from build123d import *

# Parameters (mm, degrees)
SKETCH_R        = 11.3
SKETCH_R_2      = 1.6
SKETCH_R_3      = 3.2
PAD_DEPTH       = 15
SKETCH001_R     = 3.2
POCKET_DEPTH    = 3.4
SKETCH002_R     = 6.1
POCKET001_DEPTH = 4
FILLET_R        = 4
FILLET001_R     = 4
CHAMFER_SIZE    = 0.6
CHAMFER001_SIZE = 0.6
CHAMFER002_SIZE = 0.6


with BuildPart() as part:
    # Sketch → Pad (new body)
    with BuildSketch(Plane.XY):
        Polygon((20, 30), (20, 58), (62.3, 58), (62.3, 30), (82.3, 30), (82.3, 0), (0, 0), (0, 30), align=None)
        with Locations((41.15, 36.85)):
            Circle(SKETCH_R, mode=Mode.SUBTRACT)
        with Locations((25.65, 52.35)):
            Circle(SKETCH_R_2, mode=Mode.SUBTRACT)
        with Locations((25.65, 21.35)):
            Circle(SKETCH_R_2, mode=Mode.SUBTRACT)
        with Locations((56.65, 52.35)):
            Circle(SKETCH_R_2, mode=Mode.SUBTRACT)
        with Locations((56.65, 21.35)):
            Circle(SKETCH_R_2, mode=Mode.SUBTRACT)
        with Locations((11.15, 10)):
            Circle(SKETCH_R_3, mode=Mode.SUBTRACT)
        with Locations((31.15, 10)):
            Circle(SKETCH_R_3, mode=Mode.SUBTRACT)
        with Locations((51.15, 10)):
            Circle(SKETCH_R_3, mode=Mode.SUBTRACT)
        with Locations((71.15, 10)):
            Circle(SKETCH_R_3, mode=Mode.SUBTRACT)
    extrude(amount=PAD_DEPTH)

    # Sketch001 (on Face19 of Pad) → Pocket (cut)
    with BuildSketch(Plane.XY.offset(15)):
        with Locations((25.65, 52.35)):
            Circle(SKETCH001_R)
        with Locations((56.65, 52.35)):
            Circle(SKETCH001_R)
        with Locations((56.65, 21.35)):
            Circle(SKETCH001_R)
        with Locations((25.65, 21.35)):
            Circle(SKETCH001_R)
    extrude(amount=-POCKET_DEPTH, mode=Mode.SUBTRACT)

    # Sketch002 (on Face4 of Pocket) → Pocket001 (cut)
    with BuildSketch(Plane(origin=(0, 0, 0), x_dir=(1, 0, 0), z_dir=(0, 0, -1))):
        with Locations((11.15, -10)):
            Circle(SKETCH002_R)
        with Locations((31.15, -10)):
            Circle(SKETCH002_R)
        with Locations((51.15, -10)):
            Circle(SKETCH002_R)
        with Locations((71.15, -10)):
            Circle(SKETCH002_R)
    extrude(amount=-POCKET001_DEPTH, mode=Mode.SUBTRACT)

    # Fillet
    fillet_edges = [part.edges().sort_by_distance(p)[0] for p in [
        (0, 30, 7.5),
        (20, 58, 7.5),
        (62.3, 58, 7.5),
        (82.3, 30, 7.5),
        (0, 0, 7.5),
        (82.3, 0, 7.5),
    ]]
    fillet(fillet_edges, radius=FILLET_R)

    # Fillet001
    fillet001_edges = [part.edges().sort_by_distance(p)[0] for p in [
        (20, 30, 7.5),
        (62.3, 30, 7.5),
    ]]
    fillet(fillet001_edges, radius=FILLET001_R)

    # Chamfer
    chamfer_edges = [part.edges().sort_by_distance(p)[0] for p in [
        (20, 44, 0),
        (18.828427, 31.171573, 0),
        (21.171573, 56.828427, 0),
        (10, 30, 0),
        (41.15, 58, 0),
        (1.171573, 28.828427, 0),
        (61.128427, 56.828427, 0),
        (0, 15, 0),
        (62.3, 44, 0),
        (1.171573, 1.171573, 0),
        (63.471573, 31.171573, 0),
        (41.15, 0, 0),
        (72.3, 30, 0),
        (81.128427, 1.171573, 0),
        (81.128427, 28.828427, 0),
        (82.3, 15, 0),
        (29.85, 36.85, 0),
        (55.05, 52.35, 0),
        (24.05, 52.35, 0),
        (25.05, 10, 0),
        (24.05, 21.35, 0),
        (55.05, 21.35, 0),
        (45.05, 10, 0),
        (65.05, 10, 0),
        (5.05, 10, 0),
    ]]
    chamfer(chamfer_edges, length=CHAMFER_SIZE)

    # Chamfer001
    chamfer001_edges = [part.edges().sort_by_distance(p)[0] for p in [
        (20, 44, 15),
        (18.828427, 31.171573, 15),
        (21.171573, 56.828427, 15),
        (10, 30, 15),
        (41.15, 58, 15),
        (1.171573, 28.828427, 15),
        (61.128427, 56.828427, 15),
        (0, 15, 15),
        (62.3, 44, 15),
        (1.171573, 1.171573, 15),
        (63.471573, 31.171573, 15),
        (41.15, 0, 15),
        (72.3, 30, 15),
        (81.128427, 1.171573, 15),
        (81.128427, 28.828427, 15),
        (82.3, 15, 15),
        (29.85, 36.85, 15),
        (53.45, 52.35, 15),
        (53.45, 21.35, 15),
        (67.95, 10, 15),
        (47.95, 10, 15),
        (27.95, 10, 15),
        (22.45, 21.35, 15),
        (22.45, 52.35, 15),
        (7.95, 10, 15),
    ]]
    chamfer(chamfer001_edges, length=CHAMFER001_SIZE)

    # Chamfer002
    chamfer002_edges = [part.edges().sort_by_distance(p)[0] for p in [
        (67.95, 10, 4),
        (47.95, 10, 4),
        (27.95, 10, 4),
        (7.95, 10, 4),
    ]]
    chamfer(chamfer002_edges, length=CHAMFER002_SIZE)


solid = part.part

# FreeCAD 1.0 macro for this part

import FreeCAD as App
import Part
import Sketcher
from FreeCAD import Vector
Q = App.Units.Quantity


def edges_at(feature, points):
    """Names of the edges that pass closest to the given points."""
    edges = feature.Shape.Edges
    near = lambda p: min(range(len(edges)), key=lambda i: edges[i].distToShape(Part.Vertex(*p))[0])
    return sorted({f"Edge{near(p) + 1}" for p in points})


def add_polygon(sketch, points):
    """Adds a closed chain of lines whose ends are joined by coincident constraints."""
    first, n = sketch.GeometryCount, len(points)
    for a, b in zip(points, points[1:] + points[:1]):
        sketch.addGeometry(Part.LineSegment(App.Vector(*a, 0), App.Vector(*b, 0)), False)
    for i in range(n):
        sketch.addConstraint(Sketcher.Constraint("Coincident", first + i, 2, first + (i + 1) % n, 1))

doc = App.newDocument("Part")
body = doc.addObject("PartDesign::Body", "Body")

# Sketch on XY plane
sketch1 = doc.addObject("Sketcher::SketchObject", "Sketch")
body.addObject(sketch1)
sketch1.AttachmentSupport = (doc.XY_Plane, [""])
sketch1.MapMode = "FlatFace"
add_polygon(sketch1, [(20, 58), (20, 30), (0, 30), (0, 0), (82.3, 0), (82.3, 30), (62.3, 30), (62.3, 58)])  # lines 0-7
sketch1.addGeometry(Part.Circle(Vector(71.2, 10, 0), Vector(0, 0, 1), 3.2), False)  # 8
sketch1.addGeometry(Part.Circle(Vector(51.1, 10, 0), Vector(0, 0, 1), 3.2), False)  # 9
sketch1.addGeometry(Part.Circle(Vector(56.6, 21.4, 0), Vector(0, 0, 1), 1.6), False)  # 10
sketch1.addGeometry(Part.Circle(Vector(31.1, 10, 0), Vector(0, 0, 1), 3.2), False)  # 11
sketch1.addGeometry(Part.Circle(Vector(11.2, 10, 0), Vector(0, 0, 1), 3.2), False)  # 12
sketch1.addGeometry(Part.Circle(Vector(25.6, 21.4, 0), Vector(0, 0, 1), 1.6), False)  # 13
sketch1.addGeometry(Part.Circle(Vector(56.6, 52.4, 0), Vector(0, 0, 1), 1.6), False)  # 14
sketch1.addGeometry(Part.Circle(Vector(41.1, 36.9, 0), Vector(0, 0, 1), 11.3), False)  # 15
sketch1.addGeometry(Part.Circle(Vector(25.6, 52.4, 0), Vector(0, 0, 1), 1.6), False)  # 16
sketch1.addConstraint([
    Sketcher.Constraint("Vertical", 0),
    Sketcher.Constraint("Horizontal", 1),
    Sketcher.Constraint("Vertical", 2),
    Sketcher.Constraint("Horizontal", 3),
    Sketcher.Constraint("Vertical", 4),
    Sketcher.Constraint("Horizontal", 5),
    Sketcher.Constraint("Vertical", 6),
    Sketcher.Constraint("Horizontal", 7),
    Sketcher.Constraint("Coincident", 2, 2, -1, 1),
    Sketcher.Constraint("Equal", 8, 9),
    Sketcher.Constraint("Equal", 9, 11),
    Sketcher.Constraint("Equal", 11, 12),
    Sketcher.Constraint("Equal", 10, 13),
    Sketcher.Constraint("Equal", 13, 14),
    Sketcher.Constraint("Equal", 14, 16),
    Sketcher.Constraint("Horizontal", 8, 3, 9, 3),
    Sketcher.Constraint("Horizontal", 9, 3, 11, 3),
    Sketcher.Constraint("Horizontal", 11, 3, 12, 3),
    Sketcher.Constraint("Horizontal", 10, 3, 13, 3),
    Sketcher.Constraint("Horizontal", 14, 3, 16, 3),
    Sketcher.Constraint("Horizontal", 1, 2, 4, 2),
    Sketcher.Constraint("Vertical", 10, 3, 14, 3),
    Sketcher.Constraint("Vertical", 13, 3, 16, 3),
    Sketcher.Constraint("Equal", 1, 5),
    Sketcher.Constraint("Diameter", 8, Q("6.4 mm")),
    Sketcher.Constraint("Diameter", 10, Q("3.2 mm")),
    Sketcher.Constraint("Diameter", 15, Q("22.6 mm")),
    Sketcher.Constraint("DistanceX", 1, 2, 1, 1, Q("20 mm")),
    Sketcher.Constraint("DistanceY", 0, 2, 0, 1, Q("28 mm")),
    Sketcher.Constraint("DistanceY", 2, 2, 2, 1, Q("30 mm")),
    Sketcher.Constraint("DistanceX", 3, 1, 3, 2, Q("82.3 mm")),
    Sketcher.Constraint("DistanceY", -1, 1, 8, 3, Q("10 mm")),
    Sketcher.Constraint("DistanceX", 9, 3, 8, 3, Q("20 mm")),
    Sketcher.Constraint("DistanceX", 11, 3, 9, 3, Q("20 mm")),
    Sketcher.Constraint("DistanceX", 12, 3, 11, 3, Q("20 mm")),
    Sketcher.Constraint("DistanceX", 13, 3, 10, 3, Q("31 mm")),
    Sketcher.Constraint("DistanceY", 10, 3, 14, 3, Q("31 mm")),
    Sketcher.Constraint("DistanceX", 15, 3, 9, 3, Q("10 mm")),
    Sketcher.Constraint("DistanceX", 9, 3, 10, 3, Q("5.5 mm")),
    Sketcher.Constraint("DistanceY", 10, 3, 15, 3, Q("15.5 mm")),
    Sketcher.Constraint("DistanceX", -1, 1, 8, 3, Q("71.15 mm")),
    Sketcher.Constraint("DistanceY", -1, 1, 10, 3, Q("21.35 mm")),
])
pad1 = doc.addObject("PartDesign::Pad", "Pad")
body.addObject(pad1)
pad1.Profile = sketch1
pad1.Length = 15

# Sketch on XY plane
sketch2 = doc.addObject("Sketcher::SketchObject", "Sketch001")
body.addObject(sketch2)
sketch2.AttachmentSupport = (doc.XY_Plane, [""])
sketch2.MapMode = "FlatFace"
sketch2.AttachmentOffset = App.Placement(Vector(0, 0, 15), App.Rotation())
sketch2.addGeometry([
    Part.Circle(Vector(25.6, 52.4, 0), Vector(0, 0, 1), 3.2),
    Part.Circle(Vector(56.6, 52.4, 0), Vector(0, 0, 1), 3.2),
    Part.Circle(Vector(56.6, 21.4, 0), Vector(0, 0, 1), 3.2),
    Part.Circle(Vector(25.6, 21.4, 0), Vector(0, 0, 1), 3.2),
], False)
sketch2.addConstraint([
    Sketcher.Constraint("Equal", 0, 1),
    Sketcher.Constraint("Equal", 1, 2),
    Sketcher.Constraint("Equal", 2, 3),
    Sketcher.Constraint("Horizontal", 0, 3, 1, 3),
    Sketcher.Constraint("Horizontal", 2, 3, 3, 3),
    Sketcher.Constraint("Vertical", 1, 3, 2, 3),
    Sketcher.Constraint("Vertical", 0, 3, 3, 3),
    Sketcher.Constraint("Diameter", 0, Q("6.4 mm")),
    Sketcher.Constraint("DistanceX", 0, 3, 1, 3, Q("31 mm")),
    Sketcher.Constraint("DistanceY", 2, 3, 1, 3, Q("31 mm")),
    Sketcher.Constraint("DistanceX", -1, 1, 0, 3, Q("25.65 mm")),
    Sketcher.Constraint("DistanceY", -1, 1, 0, 3, Q("52.35 mm")),
])
pocket1 = doc.addObject("PartDesign::Pocket", "Pocket")
body.addObject(pocket1)
pocket1.Profile = sketch2
pocket1.Length = 3.4

# Sketch on XY plane
sketch3 = doc.addObject("Sketcher::SketchObject", "Sketch002")
body.addObject(sketch3)
sketch3.AttachmentSupport = (doc.XY_Plane, [""])
sketch3.MapMode = "FlatFace"
sketch3.addGeometry([
    Part.Circle(Vector(11, 10, 0), Vector(0, 0, 1), 6),
    Part.Circle(Vector(31, 10, 0), Vector(0, 0, 1), 6),
    Part.Circle(Vector(51, 10, 0), Vector(0, 0, 1), 6),
    Part.Circle(Vector(71, 10, 0), Vector(0, 0, 1), 6),
], False)
sketch3.addConstraint([
    Sketcher.Constraint("Equal", 0, 1),
    Sketcher.Constraint("Equal", 1, 2),
    Sketcher.Constraint("Equal", 2, 3),
    Sketcher.Constraint("Horizontal", 0, 3, 1, 3),
    Sketcher.Constraint("Horizontal", 1, 3, 2, 3),
    Sketcher.Constraint("Horizontal", 2, 3, 3, 3),
    Sketcher.Constraint("Diameter", 0, Q("12.2 mm")),
    Sketcher.Constraint("DistanceY", -1, 1, 0, 3, Q("10 mm")),
    Sketcher.Constraint("DistanceX", 0, 3, 1, 3, Q("20 mm")),
    Sketcher.Constraint("DistanceX", 1, 3, 2, 3, Q("20 mm")),
    Sketcher.Constraint("DistanceX", 2, 3, 3, 3, Q("20 mm")),
    Sketcher.Constraint("DistanceX", -1, 1, 0, 3, Q("11.15 mm")),
])
pocket2 = doc.addObject("PartDesign::Pocket", "Pocket001")
body.addObject(pocket2)
pocket2.Profile = sketch3
pocket2.Length = 4
pocket2.Reversed = True
doc.recompute()

fillet = doc.addObject("PartDesign::Fillet", "Fillet")
body.addObject(fillet)
fillet.Base = (pocket2, edges_at(pocket2, [
    (0, 30, 7.5),
    (20, 58, 7.5),
    (62.3, 58, 7.5),
    (82.3, 30, 7.5),
    (0, 0, 7.5),
    (82.3, 0, 7.5),
]))
fillet.Radius = 4
doc.recompute()

fillet2 = doc.addObject("PartDesign::Fillet", "Fillet001")
body.addObject(fillet2)
fillet2.Base = (fillet, edges_at(fillet, [(20, 30, 7.5), (62.3, 30, 7.5)]))
fillet2.Radius = 4
doc.recompute()

chamfer = doc.addObject("PartDesign::Chamfer", "Chamfer")
body.addObject(chamfer)
chamfer.Base = (fillet2, edges_at(fillet2, [
    (20, 44, 0),
    (18.828, 31.172, 0),
    (21.172, 56.828, 0),
    (10, 30, 0),
    (41.15, 58, 0),
    (1.172, 28.828, 0),
    (61.128, 56.828, 0),
    (0, 15, 0),
    (62.3, 44, 0),
    (1.172, 1.172, 0),
    (63.472, 31.172, 0),
    (41.15, 0, 0),
    (72.3, 30, 0),
    (81.128, 1.172, 0),
    (81.128, 28.828, 0),
    (82.3, 15, 0),
    (29.85, 36.85, 0),
    (55.05, 52.35, 0),
    (24.05, 52.35, 0),
    (25.05, 10, 0),
    (24.05, 21.35, 0),
    (55.05, 21.35, 0),
    (45.05, 10, 0),
    (65.05, 10, 0),
    (5.05, 10, 0),
]))
chamfer.Size = 0.6
doc.recompute()

chamfer2 = doc.addObject("PartDesign::Chamfer", "Chamfer001")
body.addObject(chamfer2)
chamfer2.Base = (chamfer, edges_at(chamfer, [
    (20, 44, 15),
    (18.828, 31.172, 15),
    (21.172, 56.828, 15),
    (10, 30, 15),
    (41.15, 58, 15),
    (1.172, 28.828, 15),
    (61.128, 56.828, 15),
    (0, 15, 15),
    (62.3, 44, 15),
    (1.172, 1.172, 15),
    (63.472, 31.172, 15),
    (41.15, 0, 15),
    (72.3, 30, 15),
    (81.128, 1.172, 15),
    (81.128, 28.828, 15),
    (82.3, 15, 15),
    (29.85, 36.85, 15),
    (53.45, 52.35, 15),
    (53.45, 21.35, 15),
    (67.95, 10, 15),
    (47.95, 10, 15),
    (27.95, 10, 15),
    (22.45, 21.35, 15),
    (22.45, 52.35, 15),
    (7.95, 10, 15),
]))
chamfer2.Size = 0.6
doc.recompute()

chamfer3 = doc.addObject("PartDesign::Chamfer", "Chamfer002")
body.addObject(chamfer3)
chamfer3.Base = (chamfer2, edges_at(chamfer2, [
    (67.95, 10, 4),
    (47.95, 10, 4),
    (27.95, 10, 4),
    (7.95, 10, 4),
]))
chamfer3.Size = 0.6

doc.recompute()
